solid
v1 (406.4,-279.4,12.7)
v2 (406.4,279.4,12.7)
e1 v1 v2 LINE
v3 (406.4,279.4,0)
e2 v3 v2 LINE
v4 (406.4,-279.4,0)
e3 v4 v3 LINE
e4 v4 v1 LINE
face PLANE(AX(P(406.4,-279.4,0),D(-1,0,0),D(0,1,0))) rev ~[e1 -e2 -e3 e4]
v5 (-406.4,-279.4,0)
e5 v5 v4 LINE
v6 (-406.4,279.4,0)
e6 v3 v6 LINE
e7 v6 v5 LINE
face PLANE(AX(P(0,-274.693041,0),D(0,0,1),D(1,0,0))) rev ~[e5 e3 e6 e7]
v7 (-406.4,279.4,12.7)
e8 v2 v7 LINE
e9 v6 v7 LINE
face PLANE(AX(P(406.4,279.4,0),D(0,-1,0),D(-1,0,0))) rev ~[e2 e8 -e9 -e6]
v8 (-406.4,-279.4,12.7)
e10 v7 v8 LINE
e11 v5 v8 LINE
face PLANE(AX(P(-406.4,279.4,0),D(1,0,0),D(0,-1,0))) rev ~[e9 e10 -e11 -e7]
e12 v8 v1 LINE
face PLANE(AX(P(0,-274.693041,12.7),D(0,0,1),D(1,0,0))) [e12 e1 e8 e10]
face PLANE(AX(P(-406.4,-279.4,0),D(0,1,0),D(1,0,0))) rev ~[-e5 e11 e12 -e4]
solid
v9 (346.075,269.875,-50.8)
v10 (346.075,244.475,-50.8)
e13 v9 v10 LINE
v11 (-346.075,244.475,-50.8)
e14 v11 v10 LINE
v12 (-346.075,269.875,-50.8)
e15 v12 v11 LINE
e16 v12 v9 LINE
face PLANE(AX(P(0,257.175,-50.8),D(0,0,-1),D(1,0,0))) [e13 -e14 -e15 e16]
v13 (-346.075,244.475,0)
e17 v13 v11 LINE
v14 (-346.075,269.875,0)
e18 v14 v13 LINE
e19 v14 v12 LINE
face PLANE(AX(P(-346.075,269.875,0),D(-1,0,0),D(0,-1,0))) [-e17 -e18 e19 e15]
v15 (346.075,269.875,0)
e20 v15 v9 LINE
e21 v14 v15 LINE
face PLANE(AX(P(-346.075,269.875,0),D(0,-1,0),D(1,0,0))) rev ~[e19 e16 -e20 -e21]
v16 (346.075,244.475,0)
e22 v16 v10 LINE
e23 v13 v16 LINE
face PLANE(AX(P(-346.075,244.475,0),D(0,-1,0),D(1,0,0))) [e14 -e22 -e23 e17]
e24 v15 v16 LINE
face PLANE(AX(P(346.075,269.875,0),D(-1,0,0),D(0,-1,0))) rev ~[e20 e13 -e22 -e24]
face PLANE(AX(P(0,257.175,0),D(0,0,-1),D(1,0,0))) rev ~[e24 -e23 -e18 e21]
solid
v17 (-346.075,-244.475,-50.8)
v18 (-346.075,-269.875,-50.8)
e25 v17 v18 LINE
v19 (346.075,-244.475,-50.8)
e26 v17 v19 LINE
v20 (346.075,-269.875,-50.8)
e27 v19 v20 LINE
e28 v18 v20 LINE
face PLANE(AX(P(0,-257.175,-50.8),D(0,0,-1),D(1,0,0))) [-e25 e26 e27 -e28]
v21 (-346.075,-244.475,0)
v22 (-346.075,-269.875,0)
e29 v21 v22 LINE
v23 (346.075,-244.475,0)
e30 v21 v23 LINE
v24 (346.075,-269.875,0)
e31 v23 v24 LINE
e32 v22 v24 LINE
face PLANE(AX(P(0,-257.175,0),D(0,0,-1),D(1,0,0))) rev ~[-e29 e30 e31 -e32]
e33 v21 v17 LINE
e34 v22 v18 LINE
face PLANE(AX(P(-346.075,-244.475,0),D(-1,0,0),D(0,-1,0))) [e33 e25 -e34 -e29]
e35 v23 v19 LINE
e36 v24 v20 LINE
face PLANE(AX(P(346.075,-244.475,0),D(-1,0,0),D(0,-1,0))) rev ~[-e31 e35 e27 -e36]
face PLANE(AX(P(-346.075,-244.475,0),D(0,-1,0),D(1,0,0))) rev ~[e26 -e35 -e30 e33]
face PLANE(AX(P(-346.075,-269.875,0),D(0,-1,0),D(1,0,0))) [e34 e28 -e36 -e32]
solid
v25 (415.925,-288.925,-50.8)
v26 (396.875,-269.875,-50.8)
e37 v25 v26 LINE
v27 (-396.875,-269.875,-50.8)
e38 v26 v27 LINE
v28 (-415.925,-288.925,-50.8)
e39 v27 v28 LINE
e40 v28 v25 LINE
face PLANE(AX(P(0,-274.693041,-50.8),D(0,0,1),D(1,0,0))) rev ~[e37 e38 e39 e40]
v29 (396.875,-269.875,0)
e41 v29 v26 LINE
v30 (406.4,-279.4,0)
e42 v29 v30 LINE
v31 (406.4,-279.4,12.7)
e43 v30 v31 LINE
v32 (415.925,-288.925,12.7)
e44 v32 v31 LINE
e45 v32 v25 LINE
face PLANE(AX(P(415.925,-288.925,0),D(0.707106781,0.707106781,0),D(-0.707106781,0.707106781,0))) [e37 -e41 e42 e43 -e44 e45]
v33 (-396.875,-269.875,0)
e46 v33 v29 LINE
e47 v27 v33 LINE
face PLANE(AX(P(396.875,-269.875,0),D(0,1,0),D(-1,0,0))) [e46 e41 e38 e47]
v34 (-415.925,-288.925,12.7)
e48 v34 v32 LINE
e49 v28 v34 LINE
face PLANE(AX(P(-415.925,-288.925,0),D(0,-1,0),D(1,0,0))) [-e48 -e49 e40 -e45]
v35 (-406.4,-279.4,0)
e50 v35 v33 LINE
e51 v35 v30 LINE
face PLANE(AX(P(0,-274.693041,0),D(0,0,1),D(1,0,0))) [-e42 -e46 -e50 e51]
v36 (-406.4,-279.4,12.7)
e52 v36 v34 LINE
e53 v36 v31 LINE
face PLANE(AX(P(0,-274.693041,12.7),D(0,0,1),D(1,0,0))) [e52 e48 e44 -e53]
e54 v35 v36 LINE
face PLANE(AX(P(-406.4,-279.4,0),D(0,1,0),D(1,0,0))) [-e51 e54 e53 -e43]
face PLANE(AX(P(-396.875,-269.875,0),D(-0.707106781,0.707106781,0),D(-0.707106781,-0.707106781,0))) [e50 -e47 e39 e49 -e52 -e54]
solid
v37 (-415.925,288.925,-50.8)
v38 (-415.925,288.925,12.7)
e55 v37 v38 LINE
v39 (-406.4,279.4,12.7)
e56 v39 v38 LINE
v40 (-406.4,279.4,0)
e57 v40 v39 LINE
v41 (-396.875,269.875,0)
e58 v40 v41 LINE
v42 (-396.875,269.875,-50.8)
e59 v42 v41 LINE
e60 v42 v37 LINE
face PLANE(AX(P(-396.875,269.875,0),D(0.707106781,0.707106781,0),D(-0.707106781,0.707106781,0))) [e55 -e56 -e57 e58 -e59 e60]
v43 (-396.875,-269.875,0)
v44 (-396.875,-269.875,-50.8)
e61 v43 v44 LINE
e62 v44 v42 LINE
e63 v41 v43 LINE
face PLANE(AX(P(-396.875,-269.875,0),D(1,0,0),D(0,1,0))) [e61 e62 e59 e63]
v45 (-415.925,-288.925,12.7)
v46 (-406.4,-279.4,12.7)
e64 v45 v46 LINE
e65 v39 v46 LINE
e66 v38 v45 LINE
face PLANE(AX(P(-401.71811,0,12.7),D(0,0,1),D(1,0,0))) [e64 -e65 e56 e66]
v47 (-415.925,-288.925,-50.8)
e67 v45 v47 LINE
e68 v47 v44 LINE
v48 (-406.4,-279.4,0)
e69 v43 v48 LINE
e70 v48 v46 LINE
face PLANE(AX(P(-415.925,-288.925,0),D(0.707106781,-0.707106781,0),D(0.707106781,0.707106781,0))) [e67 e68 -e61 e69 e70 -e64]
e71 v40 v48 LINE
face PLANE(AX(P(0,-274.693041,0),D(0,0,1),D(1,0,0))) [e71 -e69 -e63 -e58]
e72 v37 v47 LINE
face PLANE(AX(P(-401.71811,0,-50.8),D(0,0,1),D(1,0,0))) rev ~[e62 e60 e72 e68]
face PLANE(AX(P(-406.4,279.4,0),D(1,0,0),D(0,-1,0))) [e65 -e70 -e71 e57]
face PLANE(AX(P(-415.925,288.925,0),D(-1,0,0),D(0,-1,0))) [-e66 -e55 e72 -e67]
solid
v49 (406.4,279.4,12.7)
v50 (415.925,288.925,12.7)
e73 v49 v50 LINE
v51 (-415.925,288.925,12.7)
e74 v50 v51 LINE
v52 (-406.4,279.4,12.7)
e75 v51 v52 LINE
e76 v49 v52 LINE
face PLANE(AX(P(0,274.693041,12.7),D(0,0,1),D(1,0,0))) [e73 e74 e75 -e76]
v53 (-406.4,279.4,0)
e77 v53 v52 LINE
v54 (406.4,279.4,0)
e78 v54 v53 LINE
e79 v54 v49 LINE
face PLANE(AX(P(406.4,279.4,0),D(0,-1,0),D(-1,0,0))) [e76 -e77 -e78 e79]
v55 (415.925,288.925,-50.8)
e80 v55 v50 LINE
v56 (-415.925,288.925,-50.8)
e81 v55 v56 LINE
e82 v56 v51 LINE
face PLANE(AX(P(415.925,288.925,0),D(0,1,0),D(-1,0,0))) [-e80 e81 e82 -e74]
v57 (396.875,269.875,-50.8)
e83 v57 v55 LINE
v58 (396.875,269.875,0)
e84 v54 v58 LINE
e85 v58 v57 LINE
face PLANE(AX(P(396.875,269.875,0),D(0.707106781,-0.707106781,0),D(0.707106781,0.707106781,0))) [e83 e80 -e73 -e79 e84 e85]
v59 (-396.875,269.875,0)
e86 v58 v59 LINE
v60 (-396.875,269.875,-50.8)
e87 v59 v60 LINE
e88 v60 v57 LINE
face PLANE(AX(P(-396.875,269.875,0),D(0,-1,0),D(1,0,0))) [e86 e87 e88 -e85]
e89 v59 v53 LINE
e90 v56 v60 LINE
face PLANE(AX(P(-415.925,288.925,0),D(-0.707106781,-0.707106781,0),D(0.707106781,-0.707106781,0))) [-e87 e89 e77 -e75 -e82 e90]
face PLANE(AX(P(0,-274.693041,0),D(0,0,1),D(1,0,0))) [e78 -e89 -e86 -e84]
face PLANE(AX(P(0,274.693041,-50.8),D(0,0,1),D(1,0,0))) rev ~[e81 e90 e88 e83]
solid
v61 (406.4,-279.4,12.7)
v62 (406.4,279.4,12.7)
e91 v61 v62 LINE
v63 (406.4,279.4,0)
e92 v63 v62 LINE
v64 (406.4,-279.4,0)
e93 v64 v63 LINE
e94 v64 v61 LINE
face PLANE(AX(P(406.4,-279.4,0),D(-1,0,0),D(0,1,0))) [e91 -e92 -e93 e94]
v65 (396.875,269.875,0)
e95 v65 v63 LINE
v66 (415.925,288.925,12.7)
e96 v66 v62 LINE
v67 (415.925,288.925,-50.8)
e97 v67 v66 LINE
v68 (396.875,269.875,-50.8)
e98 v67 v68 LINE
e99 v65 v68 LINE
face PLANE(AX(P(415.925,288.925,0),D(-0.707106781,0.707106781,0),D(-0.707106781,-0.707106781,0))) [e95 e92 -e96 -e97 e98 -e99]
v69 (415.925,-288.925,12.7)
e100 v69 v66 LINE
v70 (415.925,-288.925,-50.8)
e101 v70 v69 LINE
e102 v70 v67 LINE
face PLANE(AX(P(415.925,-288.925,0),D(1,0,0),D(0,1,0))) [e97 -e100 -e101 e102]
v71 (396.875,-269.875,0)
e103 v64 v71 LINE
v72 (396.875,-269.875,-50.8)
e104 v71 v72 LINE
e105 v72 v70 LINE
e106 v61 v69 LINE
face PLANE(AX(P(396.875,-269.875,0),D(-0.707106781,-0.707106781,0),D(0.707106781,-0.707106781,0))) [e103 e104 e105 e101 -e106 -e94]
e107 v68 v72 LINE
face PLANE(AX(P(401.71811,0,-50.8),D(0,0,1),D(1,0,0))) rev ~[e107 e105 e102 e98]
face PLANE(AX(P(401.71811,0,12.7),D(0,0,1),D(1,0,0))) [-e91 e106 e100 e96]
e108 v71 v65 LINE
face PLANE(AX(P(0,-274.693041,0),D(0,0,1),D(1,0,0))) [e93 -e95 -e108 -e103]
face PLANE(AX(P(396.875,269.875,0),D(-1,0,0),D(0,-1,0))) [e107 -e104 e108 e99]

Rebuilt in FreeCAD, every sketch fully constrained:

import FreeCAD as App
import Part
import Sketcher

V = App.Vector
Q = App.Units.Quantity


def add_polygon(sketch, points):
    """Adds a closed chain of lines whose ends are joined by coincident constraints."""
    first, n = sketch.GeometryCount, len(points)
    for a, b in zip(points, points[1:] + points[:1]):
        sketch.addGeometry(Part.LineSegment(App.Vector(*a, 0), App.Vector(*b, 0)), False)
    for i in range(n):
        sketch.addConstraint(Sketcher.Constraint("Coincident", first + i, 2, first + (i + 1) % n, 1))

doc = App.newDocument("Part")
params = doc.addObject("Spreadsheet::Sheet", "Params")
for row, (alias, value) in enumerate([
    ("sketch1_width", "32 in"),
    ("sketch1_height", "22 in"),
    ("pad1_length", "0.5 in"),
    ("sketch2_height", "21.25 in"),
    ("pad2_length", "0.5 in"),
    ("pad2_length2", "2 in"),
    ("sketch3_width", "31.25 in"),
    ("pad3_length", "0.5 in"),
    ("pad3_length2", "2 in"),
    ("sketch4_height", "22.75 in"),
    ("pad4_length", "0.5 in"),
    ("pad4_length2", "2 in"),
    ("sketch5_width", "32.75 in"),
    ("pad5_length", "0.5 in"),
    ("pad5_length2", "2 in"),
    ("sketch6_height", "1 in"),
    ("sketch6_width", "27.25 in"),
    ("pad6_length", "2 in"),
], start=1):
    params.set(f"A{row}", alias)
    params.set(f"B{row}", "=" + value)
    params.setAlias(f"B{row}", alias)

body = doc.addObject("PartDesign::Body", "Body")

# Sketch on XY plane
sketch1 = body.newObject("Sketcher::SketchObject", "Sketch")
sketch1.AttachmentSupport = (doc.getObject("XY_Plane"), [""])
sketch1.MapMode = "FlatFace"
add_polygon(sketch1, [(-406, -279), (406, -279), (406, 279), (-406, 279)])  # lines 0-3
sketch1.addConstraint(Sketcher.Constraint("Horizontal", 0))
sketch1.addConstraint(Sketcher.Constraint("Vertical", 1))
sketch1.addConstraint(Sketcher.Constraint("Horizontal", 2))
sketch1.addConstraint(Sketcher.Constraint("Vertical", 3))
sketch1.addConstraint(Sketcher.Constraint("Symmetric", 0, 2, 2, 2, -1, 1))
sketch1.addConstraint(Sketcher.Constraint("DistanceX", 0, 1, 0, 2, Q("32 in")))
sketch1.addConstraint(Sketcher.Constraint("DistanceY", 1, 1, 1, 2, Q("22 in")))
sketch1.setExpression("Constraints[9]", "Params.sketch1_width")
sketch1.setExpression("Constraints[10]", "Params.sketch1_height")
pad1 = body.newObject("PartDesign::Pad", "Pad")
pad1.Profile = sketch1
pad1.setExpression("Length", "Params.pad1_length")
body2 = doc.addObject("PartDesign::Body", "Body001")

# Sketch on XY plane
sketch2 = body2.newObject("Sketcher::SketchObject", "Sketch001")
sketch2.AttachmentSupport = (doc.getObject("XY_Plane001"), [""])
sketch2.MapMode = "FlatFace"
add_polygon(sketch2, [(-397, -270), (-397, 270), (-416, 289), (-416, -289)])  # lines 0-3
sketch2.addConstraint(Sketcher.Constraint("Vertical", 0))
sketch2.addConstraint(Sketcher.Constraint("Vertical", 2))
sketch2.addConstraint(Sketcher.Constraint("Perpendicular", 1, 3))
sketch2.addConstraint(Sketcher.Constraint("Equal", 1, 3))
sketch2.addConstraint(Sketcher.Constraint("DistanceY", 2, 2, 0, 2, Q("22 in")))
sketch2.addConstraint(Sketcher.Constraint("DistanceY", 0, 1, 0, 2, Q("21.25 in")))
sketch2.addConstraint(Sketcher.Constraint("DistanceX", 0, 2, -1, 1, Q("15.625 in")))
sketch2.addConstraint(Sketcher.Constraint("DistanceY", -1, 1, 0, 2, Q("10.625 in")))
sketch2.setExpression("Constraints[9]", "Params.sketch2_height")
pad2 = body2.newObject("PartDesign::Pad", "Pad001")
pad2.Profile = sketch2
pad2.Type = "TwoLengths"
pad2.setExpression("Length", "Params.pad2_length")
pad2.setExpression("Length2", "Params.pad2_length2")
doc.recompute()

body3 = doc.addObject("PartDesign::Body", "Body002")
body3.BaseFeature = body
boolean = body2.newObject("PartDesign::Boolean", "Boolean")
boolean.Type = "Cut"
boolean.addObjects([body3])
doc.recompute()
body4 = doc.addObject("PartDesign::Body", "Body003")

# Sketch on XY plane
sketch3 = body4.newObject("Sketcher::SketchObject", "Sketch002")
sketch3.AttachmentSupport = (doc.getObject("XY_Plane003"), [""])
sketch3.MapMode = "FlatFace"
add_polygon(sketch3, [(397, -270), (-397, -270), (-416, -289), (416, -289)])  # lines 0-3
sketch3.addConstraint(Sketcher.Constraint("Horizontal", 0))
sketch3.addConstraint(Sketcher.Constraint("Horizontal", 2))
sketch3.addConstraint(Sketcher.Constraint("Perpendicular", 1, 3))
sketch3.addConstraint(Sketcher.Constraint("Equal", 1, 3))
sketch3.addConstraint(Sketcher.Constraint("DistanceX", 0, 2, 2, 2, Q("32 in")))
sketch3.addConstraint(Sketcher.Constraint("DistanceX", 0, 2, 0, 1, Q("31.25 in")))
sketch3.addConstraint(Sketcher.Constraint("DistanceX", 0, 2, -1, 1, Q("15.625 in")))
sketch3.addConstraint(Sketcher.Constraint("DistanceY", 0, 2, -1, 1, Q("10.625 in")))
sketch3.setExpression("Constraints[9]", "Params.sketch3_width")
pad3 = body4.newObject("PartDesign::Pad", "Pad002")
pad3.Profile = sketch3
pad3.Type = "TwoLengths"
pad3.setExpression("Length", "Params.pad3_length")
pad3.setExpression("Length2", "Params.pad3_length2")
doc.recompute()

body5 = doc.addObject("PartDesign::Body", "Body004")
body5.BaseFeature = body
boolean2 = body4.newObject("PartDesign::Boolean", "Boolean001")
boolean2.Type = "Cut"
boolean2.addObjects([body5])
doc.recompute()
body6 = doc.addObject("PartDesign::Body", "Body005")

# Sketch on XY plane
sketch4 = body6.newObject("Sketcher::SketchObject", "Sketch003")
sketch4.AttachmentSupport = (doc.getObject("XY_Plane005"), [""])
sketch4.MapMode = "FlatFace"
add_polygon(sketch4, [(397, -270), (416, -289), (416, 289), (397, 270)])  # lines 0-3
sketch4.addConstraint(Sketcher.Constraint("Vertical", 1))
sketch4.addConstraint(Sketcher.Constraint("Vertical", 3))
sketch4.addConstraint(Sketcher.Constraint("Perpendicular", 0, 2))
sketch4.addConstraint(Sketcher.Constraint("Equal", 0, 2))
sketch4.addConstraint(Sketcher.Constraint("DistanceY", 0, 2, 2, 2, Q("22 in")))
sketch4.addConstraint(Sketcher.Constraint("DistanceY", 1, 1, 1, 2, Q("22.75 in")))
sketch4.addConstraint(Sketcher.Constraint("DistanceX", -1, 1, 0, 2, Q("16.375 in")))
sketch4.addConstraint(Sketcher.Constraint("DistanceY", 0, 2, -1, 1, Q("11.375 in")))
sketch4.setExpression("Constraints[9]", "Params.sketch4_height")
pad4 = body6.newObject("PartDesign::Pad", "Pad003")
pad4.Profile = sketch4
pad4.Type = "TwoLengths"
pad4.setExpression("Length", "Params.pad4_length")
pad4.setExpression("Length2", "Params.pad4_length2")
doc.recompute()

body7 = doc.addObject("PartDesign::Body", "Body006")
body7.BaseFeature = body
boolean3 = body6.newObject("PartDesign::Boolean", "Boolean002")
boolean3.Type = "Cut"
boolean3.addObjects([body7])
doc.recompute()
body8 = doc.addObject("PartDesign::Body", "Body007")

# Sketch on XY plane
sketch5 = body8.newObject("Sketcher::SketchObject", "Sketch004")
sketch5.AttachmentSupport = (doc.getObject("XY_Plane007"), [""])
sketch5.MapMode = "FlatFace"
add_polygon(sketch5, [(397, 270), (416, 289), (-416, 289), (-397, 270)])  # lines 0-3
sketch5.addConstraint(Sketcher.Constraint("Horizontal", 1))
sketch5.addConstraint(Sketcher.Constraint("Horizontal", 3))
sketch5.addConstraint(Sketcher.Constraint("Perpendicular", 0, 2))
sketch5.addConstraint(Sketcher.Constraint("Equal", 0, 2))
sketch5.addConstraint(Sketcher.Constraint("DistanceX", 2, 2, 0, 2, Q("32 in")))
sketch5.addConstraint(Sketcher.Constraint("DistanceX", 1, 2, 1, 1, Q("32.75 in")))
sketch5.addConstraint(Sketcher.Constraint("DistanceX", -1, 1, 0, 2, Q("16.375 in")))
sketch5.addConstraint(Sketcher.Constraint("DistanceY", -1, 1, 0, 2, Q("11.375 in")))
sketch5.setExpression("Constraints[9]", "Params.sketch5_width")
pad5 = body8.newObject("PartDesign::Pad", "Pad004")
pad5.Profile = sketch5
pad5.Type = "TwoLengths"
pad5.setExpression("Length", "Params.pad5_length")
pad5.setExpression("Length2", "Params.pad5_length2")
doc.recompute()

body9 = doc.addObject("PartDesign::Body", "Body008")
body9.BaseFeature = body
boolean4 = body8.newObject("PartDesign::Boolean", "Boolean003")
boolean4.Type = "Cut"
boolean4.addObjects([body9])
doc.recompute()
body10 = doc.addObject("PartDesign::Body", "Body009")
body10.AllowCompound = True

# Sketch on XY plane
sketch6 = body10.newObject("Sketcher::SketchObject", "Sketch005")
sketch6.AttachmentSupport = (doc.getObject("XY_Plane009"), [""])
sketch6.MapMode = "FlatFace"
add_polygon(sketch6, [(-346, -270), (-346, -244), (346, -244), (346, -270)])  # lines 0-3
add_polygon(sketch6, [(-346, 244), (-346, 270), (346, 270), (346, 244)])  # lines 4-7
sketch6.addConstraint(Sketcher.Constraint("Vertical", 0))
sketch6.addConstraint(Sketcher.Constraint("Horizontal", 1))
sketch6.addConstraint(Sketcher.Constraint("Vertical", 2))
sketch6.addConstraint(Sketcher.Constraint("Horizontal", 3))
sketch6.addConstraint(Sketcher.Constraint("Vertical", 4))
sketch6.addConstraint(Sketcher.Constraint("Horizontal", 5))
sketch6.addConstraint(Sketcher.Constraint("Vertical", 6))
sketch6.addConstraint(Sketcher.Constraint("Horizontal", 7))
sketch6.addConstraint(Sketcher.Constraint("Symmetric", 2, 2, 4, 2, -1, 1))
sketch6.addConstraint(Sketcher.Constraint("Symmetric", 0, 2, 6, 2, -1, 1))
sketch6.addConstraint(Sketcher.Constraint("Vertical", 3, 2, 4, 2))
sketch6.addConstraint(Sketcher.Constraint("DistanceY", 0, 1, 0, 2, Q("1 in")))
sketch6.addConstraint(Sketcher.Constraint("DistanceX", 1, 1, 1, 2, Q("27.25 in")))
sketch6.addConstraint(Sketcher.Constraint("DistanceY", 0, 2, 4, 2, Q("20.25 in")))
sketch6.setExpression("Constraints[19]", "Params.sketch6_height")
sketch6.setExpression("Constraints[20]", "Params.sketch6_width")
pad6 = body10.newObject("PartDesign::Pad", "Pad005")
pad6.Profile = sketch6
pad6.setExpression("Length", "Params.pad6_length")
pad6.Reversed = True

doc.recompute()
